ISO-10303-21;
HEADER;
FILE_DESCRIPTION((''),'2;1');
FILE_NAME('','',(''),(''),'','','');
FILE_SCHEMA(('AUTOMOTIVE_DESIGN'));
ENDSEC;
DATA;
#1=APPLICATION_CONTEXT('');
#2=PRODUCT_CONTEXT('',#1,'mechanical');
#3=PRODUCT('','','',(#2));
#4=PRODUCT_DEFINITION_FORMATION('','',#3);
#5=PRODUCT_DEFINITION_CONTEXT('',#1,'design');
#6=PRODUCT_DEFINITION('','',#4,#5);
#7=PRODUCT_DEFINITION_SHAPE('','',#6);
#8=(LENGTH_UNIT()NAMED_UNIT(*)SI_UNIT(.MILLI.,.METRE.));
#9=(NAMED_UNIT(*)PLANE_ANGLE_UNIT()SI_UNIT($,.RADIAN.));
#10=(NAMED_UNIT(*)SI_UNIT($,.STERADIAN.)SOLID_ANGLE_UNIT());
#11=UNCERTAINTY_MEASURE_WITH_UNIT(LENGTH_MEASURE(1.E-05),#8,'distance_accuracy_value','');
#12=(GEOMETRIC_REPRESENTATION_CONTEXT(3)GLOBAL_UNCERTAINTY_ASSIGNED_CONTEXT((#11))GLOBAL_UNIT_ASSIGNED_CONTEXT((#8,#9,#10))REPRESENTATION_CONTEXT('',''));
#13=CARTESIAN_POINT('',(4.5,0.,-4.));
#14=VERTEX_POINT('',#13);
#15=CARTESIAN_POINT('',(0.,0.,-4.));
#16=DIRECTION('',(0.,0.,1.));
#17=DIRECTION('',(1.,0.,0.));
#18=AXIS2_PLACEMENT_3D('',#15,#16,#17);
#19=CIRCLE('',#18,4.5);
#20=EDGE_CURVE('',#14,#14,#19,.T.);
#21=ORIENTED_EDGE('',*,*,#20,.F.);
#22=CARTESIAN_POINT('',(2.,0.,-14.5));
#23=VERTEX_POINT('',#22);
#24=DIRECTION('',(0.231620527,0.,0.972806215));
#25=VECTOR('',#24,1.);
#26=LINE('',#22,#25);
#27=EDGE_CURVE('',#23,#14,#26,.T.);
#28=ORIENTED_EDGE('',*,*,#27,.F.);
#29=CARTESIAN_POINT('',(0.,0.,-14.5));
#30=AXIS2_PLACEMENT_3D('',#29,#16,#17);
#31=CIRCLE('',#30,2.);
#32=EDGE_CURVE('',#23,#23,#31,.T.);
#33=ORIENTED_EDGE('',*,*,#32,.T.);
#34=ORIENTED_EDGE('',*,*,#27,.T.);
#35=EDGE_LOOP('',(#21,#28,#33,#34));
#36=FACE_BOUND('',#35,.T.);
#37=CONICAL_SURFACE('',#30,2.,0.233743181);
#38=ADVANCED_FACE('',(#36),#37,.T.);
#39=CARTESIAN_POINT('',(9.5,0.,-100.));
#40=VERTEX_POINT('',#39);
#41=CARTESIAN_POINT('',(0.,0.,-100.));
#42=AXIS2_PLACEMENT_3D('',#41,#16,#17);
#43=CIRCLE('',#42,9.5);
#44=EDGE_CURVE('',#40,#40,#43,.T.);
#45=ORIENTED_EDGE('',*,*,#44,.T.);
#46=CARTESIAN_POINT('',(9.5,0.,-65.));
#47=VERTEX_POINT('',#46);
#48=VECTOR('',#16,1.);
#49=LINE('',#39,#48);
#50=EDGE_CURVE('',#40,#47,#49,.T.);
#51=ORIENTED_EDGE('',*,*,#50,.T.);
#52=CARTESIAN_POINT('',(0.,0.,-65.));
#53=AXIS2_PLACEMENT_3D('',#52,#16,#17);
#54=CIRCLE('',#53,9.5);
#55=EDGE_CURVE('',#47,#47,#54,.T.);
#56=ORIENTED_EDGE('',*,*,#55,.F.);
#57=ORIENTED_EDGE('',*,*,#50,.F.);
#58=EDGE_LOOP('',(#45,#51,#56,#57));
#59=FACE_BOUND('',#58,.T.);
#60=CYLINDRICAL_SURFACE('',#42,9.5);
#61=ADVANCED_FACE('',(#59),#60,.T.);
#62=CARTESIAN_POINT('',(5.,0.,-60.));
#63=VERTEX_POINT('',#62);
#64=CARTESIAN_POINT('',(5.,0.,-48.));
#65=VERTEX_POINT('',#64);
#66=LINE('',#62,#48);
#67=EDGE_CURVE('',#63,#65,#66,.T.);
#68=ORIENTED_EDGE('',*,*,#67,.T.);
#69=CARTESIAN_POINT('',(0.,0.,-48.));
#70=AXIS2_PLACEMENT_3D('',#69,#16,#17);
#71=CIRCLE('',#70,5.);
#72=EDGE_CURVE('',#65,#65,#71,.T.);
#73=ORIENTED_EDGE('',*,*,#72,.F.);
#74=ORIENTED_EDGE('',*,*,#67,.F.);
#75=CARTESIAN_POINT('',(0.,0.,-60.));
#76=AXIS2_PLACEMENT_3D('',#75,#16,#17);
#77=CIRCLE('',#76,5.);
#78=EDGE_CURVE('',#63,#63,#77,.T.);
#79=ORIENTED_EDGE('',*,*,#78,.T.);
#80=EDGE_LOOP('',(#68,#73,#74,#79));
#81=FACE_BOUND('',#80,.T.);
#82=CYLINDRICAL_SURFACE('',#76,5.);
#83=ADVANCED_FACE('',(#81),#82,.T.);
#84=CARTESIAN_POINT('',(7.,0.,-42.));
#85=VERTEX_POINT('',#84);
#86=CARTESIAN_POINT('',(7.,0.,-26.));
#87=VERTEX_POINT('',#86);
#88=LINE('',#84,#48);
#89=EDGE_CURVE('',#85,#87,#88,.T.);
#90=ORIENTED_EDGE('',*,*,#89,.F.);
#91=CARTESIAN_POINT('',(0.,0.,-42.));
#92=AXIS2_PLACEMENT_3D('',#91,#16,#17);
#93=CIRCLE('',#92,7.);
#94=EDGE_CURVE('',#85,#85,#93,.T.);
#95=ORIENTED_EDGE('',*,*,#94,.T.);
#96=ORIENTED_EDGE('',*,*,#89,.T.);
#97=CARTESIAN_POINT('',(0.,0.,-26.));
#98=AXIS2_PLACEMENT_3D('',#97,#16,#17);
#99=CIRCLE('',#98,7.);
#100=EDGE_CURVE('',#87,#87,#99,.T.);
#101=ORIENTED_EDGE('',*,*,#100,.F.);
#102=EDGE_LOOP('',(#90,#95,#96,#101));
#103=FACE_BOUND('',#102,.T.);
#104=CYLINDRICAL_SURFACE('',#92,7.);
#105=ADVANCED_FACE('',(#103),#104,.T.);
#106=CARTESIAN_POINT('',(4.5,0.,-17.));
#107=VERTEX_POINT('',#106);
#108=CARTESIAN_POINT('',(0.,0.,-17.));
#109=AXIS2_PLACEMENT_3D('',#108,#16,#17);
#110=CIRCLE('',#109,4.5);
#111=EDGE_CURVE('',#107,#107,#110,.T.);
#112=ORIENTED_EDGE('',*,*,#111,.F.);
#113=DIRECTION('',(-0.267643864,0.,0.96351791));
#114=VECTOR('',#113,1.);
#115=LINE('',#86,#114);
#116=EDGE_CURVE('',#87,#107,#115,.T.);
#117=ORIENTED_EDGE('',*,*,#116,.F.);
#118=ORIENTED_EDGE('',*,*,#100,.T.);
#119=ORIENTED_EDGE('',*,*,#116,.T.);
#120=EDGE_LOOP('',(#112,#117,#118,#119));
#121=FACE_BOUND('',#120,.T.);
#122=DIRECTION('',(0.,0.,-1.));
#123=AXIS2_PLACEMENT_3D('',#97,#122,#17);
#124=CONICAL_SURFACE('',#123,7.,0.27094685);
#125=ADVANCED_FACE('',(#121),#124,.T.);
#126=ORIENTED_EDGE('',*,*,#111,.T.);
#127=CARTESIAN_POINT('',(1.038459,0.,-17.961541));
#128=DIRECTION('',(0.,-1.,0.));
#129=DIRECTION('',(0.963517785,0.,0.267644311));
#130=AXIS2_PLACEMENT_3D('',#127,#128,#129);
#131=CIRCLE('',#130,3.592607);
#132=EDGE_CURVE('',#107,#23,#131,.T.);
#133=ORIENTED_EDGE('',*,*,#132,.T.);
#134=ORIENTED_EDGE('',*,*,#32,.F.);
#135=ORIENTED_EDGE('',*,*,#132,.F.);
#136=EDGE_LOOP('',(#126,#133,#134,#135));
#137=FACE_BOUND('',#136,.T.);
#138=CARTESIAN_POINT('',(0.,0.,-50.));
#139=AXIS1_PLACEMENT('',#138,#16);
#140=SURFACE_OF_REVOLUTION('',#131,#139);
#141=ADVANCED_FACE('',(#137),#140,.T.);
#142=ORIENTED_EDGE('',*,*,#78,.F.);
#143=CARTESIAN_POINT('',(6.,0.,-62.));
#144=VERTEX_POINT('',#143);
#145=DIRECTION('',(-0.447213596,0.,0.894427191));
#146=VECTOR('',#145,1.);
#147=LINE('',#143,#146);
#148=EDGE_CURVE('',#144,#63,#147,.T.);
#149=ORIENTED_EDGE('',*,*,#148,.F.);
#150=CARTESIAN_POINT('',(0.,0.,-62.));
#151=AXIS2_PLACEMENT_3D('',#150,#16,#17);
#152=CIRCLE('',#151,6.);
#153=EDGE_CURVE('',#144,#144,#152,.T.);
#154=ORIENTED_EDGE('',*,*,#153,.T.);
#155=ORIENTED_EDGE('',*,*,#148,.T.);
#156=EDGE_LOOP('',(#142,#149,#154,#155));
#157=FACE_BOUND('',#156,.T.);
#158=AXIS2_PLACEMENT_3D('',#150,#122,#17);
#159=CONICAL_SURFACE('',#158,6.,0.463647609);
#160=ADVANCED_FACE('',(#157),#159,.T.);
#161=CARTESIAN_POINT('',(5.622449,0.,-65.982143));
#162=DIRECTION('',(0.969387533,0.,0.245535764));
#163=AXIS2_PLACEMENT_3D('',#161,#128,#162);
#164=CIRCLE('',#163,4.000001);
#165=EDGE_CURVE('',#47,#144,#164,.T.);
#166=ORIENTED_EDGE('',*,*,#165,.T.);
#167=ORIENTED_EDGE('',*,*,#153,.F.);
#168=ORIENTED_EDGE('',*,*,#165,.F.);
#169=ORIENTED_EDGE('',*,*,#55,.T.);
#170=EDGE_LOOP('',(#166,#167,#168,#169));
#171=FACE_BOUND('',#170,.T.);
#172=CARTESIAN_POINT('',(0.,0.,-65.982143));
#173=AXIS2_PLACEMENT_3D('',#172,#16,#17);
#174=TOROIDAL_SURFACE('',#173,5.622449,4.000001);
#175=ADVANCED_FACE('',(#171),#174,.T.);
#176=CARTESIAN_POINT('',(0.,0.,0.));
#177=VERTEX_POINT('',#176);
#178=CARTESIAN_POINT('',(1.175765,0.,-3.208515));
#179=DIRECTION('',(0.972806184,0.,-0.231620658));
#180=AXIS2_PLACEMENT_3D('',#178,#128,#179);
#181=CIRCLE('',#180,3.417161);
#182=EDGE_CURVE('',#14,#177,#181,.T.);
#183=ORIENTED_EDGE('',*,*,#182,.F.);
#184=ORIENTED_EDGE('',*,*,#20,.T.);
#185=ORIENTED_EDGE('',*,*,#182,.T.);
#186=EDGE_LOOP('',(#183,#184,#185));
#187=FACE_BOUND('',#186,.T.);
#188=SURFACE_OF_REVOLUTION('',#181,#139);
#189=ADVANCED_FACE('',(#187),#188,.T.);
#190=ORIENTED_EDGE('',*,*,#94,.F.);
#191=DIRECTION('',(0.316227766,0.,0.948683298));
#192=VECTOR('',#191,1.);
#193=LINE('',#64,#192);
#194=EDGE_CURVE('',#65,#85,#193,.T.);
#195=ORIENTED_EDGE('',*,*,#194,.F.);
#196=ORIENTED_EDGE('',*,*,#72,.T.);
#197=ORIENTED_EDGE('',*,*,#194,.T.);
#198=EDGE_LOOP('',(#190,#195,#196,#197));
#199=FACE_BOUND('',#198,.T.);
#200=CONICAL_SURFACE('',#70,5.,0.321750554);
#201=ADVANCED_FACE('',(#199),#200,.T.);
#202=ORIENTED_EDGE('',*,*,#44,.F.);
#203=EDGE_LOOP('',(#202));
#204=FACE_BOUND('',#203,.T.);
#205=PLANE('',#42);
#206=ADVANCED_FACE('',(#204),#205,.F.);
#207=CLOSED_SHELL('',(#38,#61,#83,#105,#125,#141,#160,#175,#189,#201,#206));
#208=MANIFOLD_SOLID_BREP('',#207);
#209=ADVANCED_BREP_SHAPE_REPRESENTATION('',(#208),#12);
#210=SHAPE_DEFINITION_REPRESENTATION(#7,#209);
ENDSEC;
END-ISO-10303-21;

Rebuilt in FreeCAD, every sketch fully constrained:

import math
import FreeCAD as App
import Part
import Sketcher

V = App.Vector

doc = App.newDocument("Part")
body = doc.addObject("PartDesign::Body", "Body")

# Sketch on XZ plane
sketch1 = doc.addObject("Sketcher::SketchObject", "Sketch")
body.addObject(sketch1)
sketch1.AttachmentSupport = (doc.XZ_Plane, [""])
sketch1.MapMode = "FlatFace"
sketch1.addGeometry([
    Part.LineSegment(V(2, -14.5, 0), V(4.5, -4, 0)),  # 0
    Part.ArcOfCircle(Part.Circle(V(1.175765, -3.208515, 0), V(0, 0, 1), 3.417161), math.radians(-13.392505), math.radians(110.125427)),  # 1
    Part.LineSegment(V(0, 0, 0), V(0, -100, 0)),  # 2
    Part.LineSegment(V(0, -100, 0), V(9.5, -100, 0)),  # 3
    Part.LineSegment(V(9.5, -100, 0), V(9.5, -65, 0)),  # 4
    Part.ArcOfCircle(Part.Circle(V(5.622449, -65.982143, 0), V(0, 0, 1), 4.000001), math.radians(14.213498), math.radians(84.583913)),  # 5
    Part.LineSegment(V(6, -62, 0), V(5, -60, 0)),  # 6
    Part.LineSegment(V(5, -60, 0), V(5, -48, 0)),  # 7
    Part.LineSegment(V(5, -48, 0), V(7, -42, 0)),  # 8
    Part.LineSegment(V(7, -42, 0), V(7, -26, 0)),  # 9
    Part.LineSegment(V(7, -26, 0), V(4.5, -17, 0)),  # 10
    Part.ArcOfCircle(Part.Circle(V(1.038459, -17.961541, 0), V(0, 0, 1), 3.592607), math.radians(15.524138), math.radians(74.475862)),  # 11
], False)
sketch1.addConstraint([
    Sketcher.Constraint("Tangent", 0, 2, 1, 1),
    Sketcher.Constraint("Coincident", 1, 2, 2, 1),
    Sketcher.Constraint("Coincident", 2, 2, 3, 1),
    Sketcher.Constraint("Coincident", 3, 2, 4, 1),
    Sketcher.Constraint("Coincident", 4, 2, 5, 1),
    Sketcher.Constraint("Coincident", 5, 2, 6, 1),
    Sketcher.Constraint("Coincident", 6, 2, 7, 1),
    Sketcher.Constraint("Coincident", 7, 2, 8, 1),
    Sketcher.Constraint("Coincident", 8, 2, 9, 1),
    Sketcher.Constraint("Coincident", 9, 2, 10, 1),
    Sketcher.Constraint("Tangent", 10, 2, 11, 1),
    Sketcher.Constraint("Coincident", 11, 2, 0, 1),
    Sketcher.Constraint("Vertical", 2),
    Sketcher.Constraint("Horizontal", 3),
    Sketcher.Constraint("Vertical", 4),
    Sketcher.Constraint("Vertical", 7),
    Sketcher.Constraint("Vertical", 9),
    Sketcher.Constraint("Coincident", 1, 2, -1, 1),
    Sketcher.Constraint("Vertical", 0, 2, 10, 2),
    Sketcher.Constraint("Radius", 5, 4.000001),
    Sketcher.Constraint("DistanceY", 2, 2, 2, 1, 100.0),
    Sketcher.Constraint("DistanceY", 4, 1, 4, 2, 35.0),
    Sketcher.Constraint("DistanceY", 7, 1, 7, 2, 12.0),
    Sketcher.Constraint("DistanceY", 9, 1, 9, 2, 16.0),
    Sketcher.Constraint("DistanceX", 3, 1, 3, 2, 9.5),
    Sketcher.Constraint("DistanceY", 0, 2, -1, 1, 4.0),
    Sketcher.Constraint("DistanceX", -1, 1, 5, 2, 6.0),
    Sketcher.Constraint("DistanceY", 5, 2, -1, 1, 62.0),
    Sketcher.Constraint("DistanceX", -1, 1, 6, 2, 5.0),
    Sketcher.Constraint("DistanceY", 6, 2, -1, 1, 60.0),
    Sketcher.Constraint("DistanceX", -1, 1, 8, 2, 7.0),
    Sketcher.Constraint("DistanceY", 8, 2, -1, 1, 42.0),
    Sketcher.Constraint("DistanceY", 10, 2, -1, 1, 17.0),
    Sketcher.Constraint("DistanceX", -1, 1, 11, 2, 2.0),
    Sketcher.Constraint("DistanceX", 0, 2, 3, 2, 5.0),
    Sketcher.Constraint("DistanceY", 11, 2, -1, 1, 14.5),
])
revolution = doc.addObject("PartDesign::Revolution", "Revolution")
body.addObject(revolution)
revolution.Profile = sketch1
revolution.ReferenceAxis = (sketch1, ["V_Axis"])
revolution.Angle = 360

doc.recompute()
